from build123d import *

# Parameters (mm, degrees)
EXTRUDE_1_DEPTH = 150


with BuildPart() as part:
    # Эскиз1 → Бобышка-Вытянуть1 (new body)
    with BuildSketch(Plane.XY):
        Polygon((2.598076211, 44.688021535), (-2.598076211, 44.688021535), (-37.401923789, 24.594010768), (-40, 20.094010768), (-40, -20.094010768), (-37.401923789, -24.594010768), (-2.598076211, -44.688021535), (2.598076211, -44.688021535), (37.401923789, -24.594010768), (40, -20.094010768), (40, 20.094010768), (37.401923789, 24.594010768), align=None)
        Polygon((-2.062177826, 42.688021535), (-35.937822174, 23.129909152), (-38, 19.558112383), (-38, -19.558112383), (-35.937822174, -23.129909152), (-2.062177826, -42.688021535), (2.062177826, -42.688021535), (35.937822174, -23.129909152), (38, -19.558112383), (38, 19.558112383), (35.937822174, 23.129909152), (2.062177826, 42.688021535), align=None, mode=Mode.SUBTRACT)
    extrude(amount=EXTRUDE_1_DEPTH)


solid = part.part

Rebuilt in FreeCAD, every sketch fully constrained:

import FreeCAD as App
import Part
import Sketcher
from FreeCAD import Vector
Q = App.Units.Quantity


def add_polygon(sketch, points):
    """Adds a closed chain of lines whose ends are joined by coincident constraints."""
    first, n = sketch.GeometryCount, len(points)
    for a, b in zip(points, points[1:] + points[:1]):
        sketch.addGeometry(Part.LineSegment(App.Vector(*a, 0), App.Vector(*b, 0)), False)
    for i in range(n):
        sketch.addConstraint(Sketcher.Constraint("Coincident", first + i, 2, first + (i + 1) % n, 1))

doc = App.newDocument("Part")
body = doc.addObject("PartDesign::Body", "Body")

# Sketch on XY plane
sketch1 = body.newObject("Sketcher::SketchObject", "Sketch")
sketch1.AttachmentSupport = (doc.getObject("XY_Plane"), [""])
sketch1.MapMode = "FlatFace"
add_polygon(sketch1, [(2.598076, 44.688022), (-2.598076, 44.688022), (-37.401924, 24.594011), (-40, 20.094011), (-40, -20.094011), (-37.401924, -24.594011), (-2.598076, -44.688022), (2.598076, -44.688022), (37.401924, -24.594011), (40, -20.094011), (40, 20.094011), (37.401924, 24.594011)])  # lines 0-11
add_polygon(sketch1, [(-35.937822, 23.129909), (-2.062178, 42.688022), (2.062178, 42.688022), (35.937822, 23.129909), (38, 19.558112), (38, -19.558112), (35.937822, -23.129909), (2.062178, -42.688022), (-2.062178, -42.688022), (-35.937822, -23.129909), (-38, -19.558112), (-38, 19.558112)])  # lines 12-23
sketch1.addConstraint(Sketcher.Constraint("Horizontal", 0))
sketch1.addConstraint(Sketcher.Constraint("Vertical", 3))
sketch1.addConstraint(Sketcher.Constraint("Horizontal", 6))
sketch1.addConstraint(Sketcher.Constraint("Vertical", 9))
sketch1.addConstraint(Sketcher.Constraint("Horizontal", 13))
sketch1.addConstraint(Sketcher.Constraint("Vertical", 16))
sketch1.addConstraint(Sketcher.Constraint("Horizontal", 19))
sketch1.addConstraint(Sketcher.Constraint("Vertical", 22))
sketch1.addConstraint(Sketcher.Constraint("Symmetric", 0, 2, 6, 2, -1, 1))
sketch1.addConstraint(Sketcher.Constraint("Symmetric", 1, 2, 7, 2, -1, 1))
sketch1.addConstraint(Sketcher.Constraint("Symmetric", 2, 2, 8, 2, -1, 1))
sketch1.addConstraint(Sketcher.Constraint("Symmetric", 4, 2, 10, 2, -1, 1))
sketch1.addConstraint(Sketcher.Constraint("Symmetric", 12, 2, 18, 2, -1, 1))
sketch1.addConstraint(Sketcher.Constraint("Symmetric", 14, 2, 20, 2, -1, 1))
sketch1.addConstraint(Sketcher.Constraint("Symmetric", 15, 2, 21, 2, -1, 1))
sketch1.addConstraint(Sketcher.Constraint("Symmetric", 17, 2, 23, 2, -1, 1))
sketch1.addConstraint(Sketcher.Constraint("Symmetric", 4, 2, 7, 2, -2))
sketch1.addConstraint(Sketcher.Constraint("Symmetric", 17, 2, 20, 2, -2))
sketch1.addConstraint(Sketcher.Constraint("Perpendicular", 1, 4))
sketch1.addConstraint(Sketcher.Constraint("Perpendicular", 2, 5))
sketch1.addConstraint(Sketcher.Constraint("Perpendicular", 7, 10))
sketch1.addConstraint(Sketcher.Constraint("Perpendicular", 8, 11))
sketch1.addConstraint(Sketcher.Constraint("Perpendicular", 10, 12))
sketch1.addConstraint(Sketcher.Constraint("Parallel", 11, 14))
sketch1.addConstraint(Sketcher.Constraint("Perpendicular", 12, 15))
sketch1.addConstraint(Sketcher.Constraint("Perpendicular", 14, 17))
sketch1.addConstraint(Sketcher.Constraint("Perpendicular", 17, 20))
sketch1.addConstraint(Sketcher.Constraint("Perpendicular", 20, 23))
sketch1.addConstraint(Sketcher.Constraint("Horizontal", 3, 2, 8, 2))
sketch1.addConstraint(Sketcher.Constraint("Angle", 1, Q("-150 deg")))
sketch1.addConstraint(Sketcher.Constraint("DistanceX", 2, 2, -1, 1, 40.0))
sketch1.addConstraint(Sketcher.Constraint("DistanceX", -1, 1, 15, 2, 38.0))
sketch1.addConstraint(Sketcher.Constraint("DistanceX", 4, 2, 6, 2, 40.0))
sketch1.addConstraint(Sketcher.Constraint("DistanceY", 12, 2, 0, 2, 2.0))
sketch1.addConstraint(Sketcher.Constraint("DistanceX", 12, 2, 14, 2, 38.0))
sketch1.addConstraint(Sketcher.Constraint("DistanceY", 2, 2, 1, 2, 4.5))
sketch1.addConstraint(Sketcher.Constraint("DistanceY", 3, 2, 3, 1, 40.188022))
sketch1.addConstraint(Sketcher.Constraint("DistanceX", 0, 2, 12, 2, 0.535898))
pad1 = body.newObject("PartDesign::Pad", "Pad")
pad1.Profile = sketch1
pad1.Length = 150

doc.recompute()
